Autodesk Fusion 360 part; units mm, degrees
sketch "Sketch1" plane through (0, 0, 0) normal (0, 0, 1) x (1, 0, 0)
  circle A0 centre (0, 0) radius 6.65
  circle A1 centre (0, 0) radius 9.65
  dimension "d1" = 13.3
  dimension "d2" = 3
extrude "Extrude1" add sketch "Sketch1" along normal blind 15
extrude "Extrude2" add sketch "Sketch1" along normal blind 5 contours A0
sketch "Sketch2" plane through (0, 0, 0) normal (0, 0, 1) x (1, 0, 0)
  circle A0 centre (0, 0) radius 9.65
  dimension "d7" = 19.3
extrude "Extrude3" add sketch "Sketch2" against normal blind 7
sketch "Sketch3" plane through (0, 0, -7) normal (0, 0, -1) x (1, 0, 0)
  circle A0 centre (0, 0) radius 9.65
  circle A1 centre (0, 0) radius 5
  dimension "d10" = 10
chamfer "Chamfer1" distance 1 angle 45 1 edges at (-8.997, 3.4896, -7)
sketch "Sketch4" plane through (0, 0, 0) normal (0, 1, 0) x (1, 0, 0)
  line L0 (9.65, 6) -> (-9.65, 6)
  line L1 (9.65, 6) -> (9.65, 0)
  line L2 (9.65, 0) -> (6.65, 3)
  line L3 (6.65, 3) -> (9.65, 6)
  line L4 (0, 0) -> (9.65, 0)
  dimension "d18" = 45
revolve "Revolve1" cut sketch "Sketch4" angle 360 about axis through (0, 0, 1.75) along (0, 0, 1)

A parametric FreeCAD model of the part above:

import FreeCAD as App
import Part
import Sketcher

V = App.Vector


def edges_at(feature, points):
    """Names of the edges that pass closest to the given points."""
    edges = feature.Shape.Edges
    near = lambda p: min(range(len(edges)), key=lambda i: edges[i].distToShape(Part.Vertex(*p))[0])
    return sorted({f"Edge{near(p) + 1}" for p in points})


def add_polygon(sketch, points):
    """Adds a closed chain of lines whose ends are joined by coincident constraints."""
    first, n = sketch.GeometryCount, len(points)
    for a, b in zip(points, points[1:] + points[:1]):
        sketch.addGeometry(Part.LineSegment(App.Vector(*a, 0), App.Vector(*b, 0)), False)
    for i in range(n):
        sketch.addConstraint(Sketcher.Constraint("Coincident", first + i, 2, first + (i + 1) % n, 1))

doc = App.newDocument("Part")
body = doc.addObject("PartDesign::Body", "Body")

# Sketch on XY plane
sketch1 = body.newObject("Sketcher::SketchObject", "Sketch")
sketch1.AttachmentSupport = (doc.getObject("XY_Plane"), [""])
sketch1.MapMode = "FlatFace"
sketch1.addGeometry([
    Part.Circle(V(0, 0, 0), V(0, 0, 1), 9.65),
    Part.Circle(V(0, 0, 0), V(0, 0, 1), 6.65),
], False)
sketch1.addConstraint([
    Sketcher.Constraint("Coincident", 0, 3, -1, 1),
    Sketcher.Constraint("Coincident", 1, 3, -1, 1),
    Sketcher.Constraint("Diameter", 1, 13.3),
    Sketcher.Constraint("Diameter", 0, 19.3),
])
pad1 = body.newObject("PartDesign::Pad", "Pad")
pad1.Profile = sketch1
pad1.Length = 15

# Sketch on XY plane
sketch2 = body.newObject("Sketcher::SketchObject", "Sketch001")
sketch2.AttachmentSupport = (doc.getObject("XY_Plane"), [""])
sketch2.MapMode = "FlatFace"
sketch2.addGeometry(Part.Circle(V(0, 0, 0), V(0, 0, 1), 6.65), False)
sketch2.addConstraint([
    Sketcher.Constraint("Coincident", 0, 3, -1, 1),
    Sketcher.Constraint("Diameter", 0, 13.3),
])
pad2 = body.newObject("PartDesign::Pad", "Pad001")
pad2.Profile = sketch2
pad2.Length = 5

# Sketch on XY plane
sketch3 = body.newObject("Sketcher::SketchObject", "Sketch002")
sketch3.AttachmentSupport = (doc.getObject("XY_Plane"), [""])
sketch3.MapMode = "FlatFace"
sketch3.addGeometry(Part.Circle(V(0, 0, 0), V(0, 0, 1), 9.65), False)
sketch3.addConstraint([
    Sketcher.Constraint("Coincident", 0, 3, -1, 1),
    Sketcher.Constraint("Diameter", 0, 19.3),
])
pad3 = body.newObject("PartDesign::Pad", "Pad002")
pad3.Profile = sketch3
pad3.Length = 7
pad3.Reversed = True
doc.recompute()

chamfer = body.newObject("PartDesign::Chamfer", "Chamfer")
chamfer.Base = (pad3, edges_at(pad3, [(-8.997, 3.49, -7)]))
chamfer.Size = 1

# Sketch on XZ plane
sketch4 = body.newObject("Sketcher::SketchObject", "Sketch003")
sketch4.AttachmentSupport = (doc.getObject("XZ_Plane"), [""])
sketch4.MapMode = "FlatFace"
add_polygon(sketch4, [(9.65, 0), (9.65, -6), (6.65, -3)])  # lines 0-2
sketch4.addConstraint([
    Sketcher.Constraint("Vertical", 0),
    Sketcher.Constraint("PointOnObject", 2, 2, -1),
    Sketcher.Constraint("Perpendicular", 1, 2),
    Sketcher.Constraint("Equal", 1, 2),
    Sketcher.Constraint("DistanceY", 0, 2, 0, 1, 6.0),
    Sketcher.Constraint("DistanceX", -1, 1, 0, 2, 9.65),
])
groove = body.newObject("PartDesign::Groove", "Groove")
groove.Profile = sketch4
groove.ReferenceAxis = (sketch4, ["V_Axis"])
groove.Angle = 360

doc.recompute()
